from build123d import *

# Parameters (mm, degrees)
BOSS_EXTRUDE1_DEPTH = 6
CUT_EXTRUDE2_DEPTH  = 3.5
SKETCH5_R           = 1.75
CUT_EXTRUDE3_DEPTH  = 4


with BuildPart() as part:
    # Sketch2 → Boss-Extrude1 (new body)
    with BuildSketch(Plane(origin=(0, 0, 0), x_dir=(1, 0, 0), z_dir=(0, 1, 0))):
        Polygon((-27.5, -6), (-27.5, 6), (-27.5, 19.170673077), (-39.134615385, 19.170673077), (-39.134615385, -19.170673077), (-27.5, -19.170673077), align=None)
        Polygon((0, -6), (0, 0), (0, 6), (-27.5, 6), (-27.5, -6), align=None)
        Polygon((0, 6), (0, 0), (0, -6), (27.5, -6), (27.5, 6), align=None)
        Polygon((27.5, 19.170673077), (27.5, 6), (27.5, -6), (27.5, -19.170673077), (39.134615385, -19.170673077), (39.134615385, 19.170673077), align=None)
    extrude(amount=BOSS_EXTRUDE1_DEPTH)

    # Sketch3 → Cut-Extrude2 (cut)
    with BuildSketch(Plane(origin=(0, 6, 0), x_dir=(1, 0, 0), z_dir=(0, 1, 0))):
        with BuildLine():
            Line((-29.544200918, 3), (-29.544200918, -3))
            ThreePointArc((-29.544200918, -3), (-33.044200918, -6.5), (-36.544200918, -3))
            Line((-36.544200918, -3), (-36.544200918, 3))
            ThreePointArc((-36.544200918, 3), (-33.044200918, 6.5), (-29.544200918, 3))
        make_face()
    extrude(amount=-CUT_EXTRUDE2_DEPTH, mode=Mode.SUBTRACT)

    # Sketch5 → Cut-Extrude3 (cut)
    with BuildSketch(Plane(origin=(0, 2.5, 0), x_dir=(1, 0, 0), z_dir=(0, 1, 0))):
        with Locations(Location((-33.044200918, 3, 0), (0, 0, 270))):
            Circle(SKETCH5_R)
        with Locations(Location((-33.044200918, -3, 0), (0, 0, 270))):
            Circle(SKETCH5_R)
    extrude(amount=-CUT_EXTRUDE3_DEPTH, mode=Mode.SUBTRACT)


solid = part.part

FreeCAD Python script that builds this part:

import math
import FreeCAD as App
import Part
import Sketcher

V = App.Vector
Q = App.Units.Quantity


def add_polygon(sketch, points):
    """Adds a closed chain of lines whose ends are joined by coincident constraints."""
    first, n = sketch.GeometryCount, len(points)
    for a, b in zip(points, points[1:] + points[:1]):
        sketch.addGeometry(Part.LineSegment(App.Vector(*a, 0), App.Vector(*b, 0)), False)
    for i in range(n):
        sketch.addConstraint(Sketcher.Constraint("Coincident", first + i, 2, first + (i + 1) % n, 1))

doc = App.newDocument("Part")
body = doc.addObject("PartDesign::Body", "Body")

sketch1 = body.newObject("Sketcher::SketchObject", "Sketch")
sketch1.AttachmentSupport = (doc.getObject("XZ_Plane"), [""])
sketch1.MapMode = "FlatFace"
add_polygon(sketch1, [(-28, -19), (-39, -19), (-39, 19), (-28, 19), (-28, 6), (28, 6), (28, 19), (39, 19), (39, -19), (28, -19), (28, -6), (-28, -6)])
sketch1.addConstraint([
    Sketcher.Constraint("Horizontal", 0),
    Sketcher.Constraint("Vertical", 1),
    Sketcher.Constraint("Horizontal", 2),
    Sketcher.Constraint("Vertical", 3),
    Sketcher.Constraint("Horizontal", 4),
    Sketcher.Constraint("Vertical", 5),
    Sketcher.Constraint("Horizontal", 6),
    Sketcher.Constraint("Vertical", 7),
    Sketcher.Constraint("Horizontal", 8),
    Sketcher.Constraint("Vertical", 9),
    Sketcher.Constraint("Horizontal", 10),
    Sketcher.Constraint("Vertical", 11),
    Sketcher.Constraint("Symmetric", 0, 2, 6, 2, -1, 1),
    Sketcher.Constraint("Symmetric", 2, 2, 8, 2, -1, 1),
    Sketcher.Constraint("Symmetric", 4, 2, 10, 2, -1, 1),
    Sketcher.Constraint("Symmetric", 2, 2, 5, 2, -2),
    Sketcher.Constraint("DistanceX", 4, 1, 4, 2, Q("55 mm")),
    Sketcher.Constraint("DistanceY", -1, 1, 3, 2, Q("6 mm")),
    Sketcher.Constraint("DistanceX", 0, 2, 0, 1, Q("11.634615 mm")),
    Sketcher.Constraint("DistanceY", 1, 1, 1, 2, Q("38.341346 mm")),
])
pad1 = body.newObject("PartDesign::Pad", "Pad")
pad1.Profile = sketch1
pad1.Length = 6
pad1.Reversed = True

sketch2 = body.newObject("Sketcher::SketchObject", "Sketch001")
sketch2.AttachmentSupport = (doc.getObject("XZ_Plane"), [""])
sketch2.MapMode = "FlatFace"
sketch2.AttachmentOffset = App.Placement(V(0, 0, -6), App.Rotation())
sketch2.addGeometry([
    Part.LineSegment(V(-29.5, 3, 0), V(-29.5, -3, 0)),
    Part.ArcOfCircle(Part.Circle(V(-33, -3, 0), V(0, 0, 1), 3.5), math.radians(180), math.radians(360)),
    Part.LineSegment(V(-36.5, -3, 0), V(-36.5, 3, 0)),
    Part.ArcOfCircle(Part.Circle(V(-33, 3, 0), V(0, 0, 1), 3.5), math.radians(0), math.radians(180)),
], False)
sketch2.addConstraint([
    Sketcher.Constraint("Tangent", 0, 2, 1, 2),
    Sketcher.Constraint("Tangent", 1, 1, 2, 1),
    Sketcher.Constraint("Tangent", 2, 2, 3, 2),
    Sketcher.Constraint("Tangent", 3, 1, 0, 1),
    Sketcher.Constraint("Vertical", 0),
    Sketcher.Constraint("Vertical", 2),
    Sketcher.Constraint("Radius", 1, Q("3.5 mm")),
    Sketcher.Constraint("DistanceY", 0, 2, 0, 1, Q("6 mm")),
    Sketcher.Constraint("DistanceY", 1, 3, -1, 1, Q("3 mm")),
    Sketcher.Constraint("DistanceX", 1, 3, -1, 1, Q("33.044201 mm")),
])
pocket1 = body.newObject("PartDesign::Pocket", "Pocket")
pocket1.Profile = sketch2
pocket1.Length = 3.5
pocket1.Reversed = True

sketch3 = body.newObject("Sketcher::SketchObject", "Sketch002")
sketch3.AttachmentSupport = (doc.getObject("XZ_Plane"), [""])
sketch3.MapMode = "FlatFace"
sketch3.AttachmentOffset = App.Placement(V(0, 0, -2.5), App.Rotation())
sketch3.addGeometry([
    Part.Circle(V(-33, -3, 0), V(0, 0, 1), 1.8),
    Part.Circle(V(-33, 3, 0), V(0, 0, 1), 1.8),
], False)
sketch3.addConstraint([
    Sketcher.Constraint("Equal", 0, 1),
    Sketcher.Constraint("Symmetric", 0, 3, 1, 3, -1),
    Sketcher.Constraint("Diameter", 0, Q("3.5 mm")),
    Sketcher.Constraint("DistanceY", 0, 3, -1, 1, Q("3 mm")),
    Sketcher.Constraint("DistanceX", 0, 3, -1, 1, Q("33.044201 mm")),
])
pocket2 = body.newObject("PartDesign::Pocket", "Pocket001")
pocket2.Profile = sketch3
pocket2.Length = 4
pocket2.Reversed = True

doc.recompute()
